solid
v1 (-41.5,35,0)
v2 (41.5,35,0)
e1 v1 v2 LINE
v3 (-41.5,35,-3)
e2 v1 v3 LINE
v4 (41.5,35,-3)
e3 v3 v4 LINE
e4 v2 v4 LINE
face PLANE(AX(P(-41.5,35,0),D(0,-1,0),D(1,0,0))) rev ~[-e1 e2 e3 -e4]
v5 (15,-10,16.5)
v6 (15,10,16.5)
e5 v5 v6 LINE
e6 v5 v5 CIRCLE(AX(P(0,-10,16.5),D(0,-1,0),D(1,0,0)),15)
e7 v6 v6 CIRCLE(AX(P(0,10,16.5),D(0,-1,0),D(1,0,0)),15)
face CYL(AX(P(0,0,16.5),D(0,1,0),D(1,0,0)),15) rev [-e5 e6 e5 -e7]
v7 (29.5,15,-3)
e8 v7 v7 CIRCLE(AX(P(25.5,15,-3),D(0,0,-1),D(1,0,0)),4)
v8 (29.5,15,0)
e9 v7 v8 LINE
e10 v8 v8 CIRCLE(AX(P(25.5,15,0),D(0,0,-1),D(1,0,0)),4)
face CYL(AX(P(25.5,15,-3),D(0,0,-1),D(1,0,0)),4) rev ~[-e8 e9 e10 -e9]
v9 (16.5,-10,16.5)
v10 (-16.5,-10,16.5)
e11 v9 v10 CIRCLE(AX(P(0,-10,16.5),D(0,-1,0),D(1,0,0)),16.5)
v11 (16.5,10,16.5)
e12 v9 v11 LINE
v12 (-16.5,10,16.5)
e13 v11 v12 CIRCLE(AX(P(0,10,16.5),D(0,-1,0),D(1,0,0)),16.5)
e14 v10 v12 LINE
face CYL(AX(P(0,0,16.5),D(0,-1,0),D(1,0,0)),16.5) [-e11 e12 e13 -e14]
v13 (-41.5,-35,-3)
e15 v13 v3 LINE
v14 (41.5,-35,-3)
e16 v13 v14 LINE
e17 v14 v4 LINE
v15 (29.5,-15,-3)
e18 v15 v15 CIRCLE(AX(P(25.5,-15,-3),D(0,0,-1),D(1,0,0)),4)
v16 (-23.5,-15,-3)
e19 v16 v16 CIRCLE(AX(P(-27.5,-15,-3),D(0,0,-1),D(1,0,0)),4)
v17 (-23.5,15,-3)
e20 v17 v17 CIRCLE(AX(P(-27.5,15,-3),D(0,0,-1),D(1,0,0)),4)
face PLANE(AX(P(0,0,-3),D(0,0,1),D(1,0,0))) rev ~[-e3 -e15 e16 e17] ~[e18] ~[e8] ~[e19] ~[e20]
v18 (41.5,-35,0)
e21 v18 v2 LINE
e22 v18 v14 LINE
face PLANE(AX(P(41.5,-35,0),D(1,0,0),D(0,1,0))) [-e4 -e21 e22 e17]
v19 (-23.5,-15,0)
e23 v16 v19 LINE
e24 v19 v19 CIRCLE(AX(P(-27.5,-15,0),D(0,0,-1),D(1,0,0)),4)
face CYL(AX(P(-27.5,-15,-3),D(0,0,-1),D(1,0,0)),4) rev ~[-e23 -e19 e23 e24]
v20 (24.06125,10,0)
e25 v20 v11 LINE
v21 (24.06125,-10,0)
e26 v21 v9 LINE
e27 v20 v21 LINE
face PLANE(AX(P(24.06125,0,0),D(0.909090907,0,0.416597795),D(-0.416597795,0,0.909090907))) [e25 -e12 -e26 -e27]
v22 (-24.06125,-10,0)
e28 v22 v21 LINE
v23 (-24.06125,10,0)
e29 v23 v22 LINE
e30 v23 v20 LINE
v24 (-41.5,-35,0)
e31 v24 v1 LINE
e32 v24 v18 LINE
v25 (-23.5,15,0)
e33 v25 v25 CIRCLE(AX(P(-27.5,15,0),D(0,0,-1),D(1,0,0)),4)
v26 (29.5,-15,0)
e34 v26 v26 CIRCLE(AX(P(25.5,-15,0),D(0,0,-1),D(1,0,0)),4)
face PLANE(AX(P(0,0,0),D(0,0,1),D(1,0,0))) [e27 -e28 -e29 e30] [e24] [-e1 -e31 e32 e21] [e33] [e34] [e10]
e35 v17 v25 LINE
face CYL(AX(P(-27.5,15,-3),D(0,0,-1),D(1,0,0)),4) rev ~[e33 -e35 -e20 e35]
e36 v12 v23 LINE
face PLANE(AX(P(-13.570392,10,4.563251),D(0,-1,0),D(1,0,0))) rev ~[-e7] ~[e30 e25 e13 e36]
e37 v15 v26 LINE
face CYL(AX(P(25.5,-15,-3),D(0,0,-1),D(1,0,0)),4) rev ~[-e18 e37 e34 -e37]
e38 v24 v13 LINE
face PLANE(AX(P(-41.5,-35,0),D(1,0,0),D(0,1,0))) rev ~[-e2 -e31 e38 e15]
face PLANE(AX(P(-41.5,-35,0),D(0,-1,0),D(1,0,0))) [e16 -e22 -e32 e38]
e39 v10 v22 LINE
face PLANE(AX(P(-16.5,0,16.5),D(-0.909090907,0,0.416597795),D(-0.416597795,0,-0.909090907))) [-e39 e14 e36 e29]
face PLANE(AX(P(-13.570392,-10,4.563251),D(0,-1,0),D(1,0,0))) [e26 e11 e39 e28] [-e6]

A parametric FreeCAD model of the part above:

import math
import FreeCAD as App
import Part
import Sketcher

doc = App.newDocument("Part")
params = doc.addObject("Spreadsheet::Sheet", "Params")
for row, (alias, value) in enumerate([
    ("sketch1_width", "83 mm"),
    ("sketch1_height", "70 mm"),
    ("pad1_length", "3 mm"),
    ("sketch2_diameter", "30 mm"),
    ("sketch2_radius", "16.5 mm"),
    ("sketch2_length", "18.15 mm"),
    ("pad2_length", "20 mm"),
    ("sketch3_diameter", "8 mm"),
    ("pocket1_length", "25 mm"),
], start=1):
    params.set(f"A{row}", alias)
    params.set(f"B{row}", "=" + value)
    params.setAlias(f"B{row}", alias)

body = doc.addObject("PartDesign::Body", "Body")

# Sketch on XY plane
sketch1 = body.newObject("Sketcher::SketchObject", "Sketch")
sketch1.AttachmentSupport = (doc.getObject("XY_Plane"), [""])
sketch1.MapMode = "FlatFace"
sketch1.addGeometry([
    Part.LineSegment(App.Vector(-42, 35, 0), App.Vector(-42, -35, 0)),
    Part.LineSegment(App.Vector(-42, -35, 0), App.Vector(42, -35, 0)),
    Part.LineSegment(App.Vector(42, -35, 0), App.Vector(42, 35, 0)),
    Part.LineSegment(App.Vector(42, 35, 0), App.Vector(-42, 35, 0)),
], False)
sketch1.addConstraint([
    Sketcher.Constraint("Coincident", 0, 2, 1, 1),
    Sketcher.Constraint("Coincident", 1, 2, 2, 1),
    Sketcher.Constraint("Coincident", 2, 2, 3, 1),
    Sketcher.Constraint("Coincident", 3, 2, 0, 1),
    Sketcher.Constraint("Vertical", 0),
    Sketcher.Constraint("Horizontal", 1),
    Sketcher.Constraint("Vertical", 2),
    Sketcher.Constraint("Horizontal", 3),
    Sketcher.Constraint("Symmetric", 0, 2, 2, 2, -1, 1),
    Sketcher.Constraint("DistanceX", 1, 1, 1, 2, 83.0),
    Sketcher.Constraint("DistanceY", 0, 2, 0, 1, 70.0),
])
sketch1.setExpression("Constraints[9]", "Params.sketch1_width")
sketch1.setExpression("Constraints[10]", "Params.sketch1_height")
pad1 = body.newObject("PartDesign::Pad", "Pad")
pad1.Profile = sketch1
pad1.setExpression("Length", "Params.pad1_length")
pad1.Reversed = True

# Sketch on XZ plane
sketch2 = body.newObject("Sketcher::SketchObject", "Sketch001")
sketch2.AttachmentSupport = (doc.getObject("XZ_Plane"), [""])
sketch2.MapMode = "FlatFace"
sketch2.addGeometry([
    Part.LineSegment(App.Vector(-16, 16, 0), App.Vector(-24, 0, 0)),  # 0
    Part.LineSegment(App.Vector(-24, 0, 0), App.Vector(24, 0, 0)),  # 1
    Part.LineSegment(App.Vector(24, 0, 0), App.Vector(16, 16, 0)),  # 2
    Part.ArcOfCircle(Part.Circle(App.Vector(0, 16, 0), App.Vector(0, 0, 1), 16), math.radians(0), math.radians(180)),  # 3
    Part.Circle(App.Vector(0, 16, 0), App.Vector(0, 0, 1), 15),  # 4
], False)
sketch2.addConstraint([
    Sketcher.Constraint("Coincident", 0, 2, 1, 1),
    Sketcher.Constraint("Coincident", 1, 2, 2, 1),
    Sketcher.Constraint("Coincident", 2, 2, 3, 1),
    Sketcher.Constraint("Coincident", 3, 2, 0, 1),
    Sketcher.Constraint("Horizontal", 1),
    Sketcher.Constraint("Coincident", 4, 3, 3, 3),
    Sketcher.Constraint("Symmetric", 0, 2, 1, 2, -1, 1),
    Sketcher.Constraint("Symmetric", 2, 2, 3, 2, -2),
    Sketcher.Constraint("Horizontal", 4, 3, 2, 2),
    Sketcher.Constraint("Diameter", 4, 30.0),
    Sketcher.Constraint("Radius", 3, 16.5),
    Sketcher.Constraint("DistanceY", -1, 1, 3, 3, 16.5),
    Sketcher.Constraint("Distance", 0, 18.15),
])
sketch2.setExpression("Constraints[9]", "Params.sketch2_diameter")
sketch2.setExpression("Constraints[10]", "Params.sketch2_radius")
sketch2.setExpression("Constraints[12]", "Params.sketch2_length")
pad2 = body.newObject("PartDesign::Pad", "Pad001")
pad2.Profile = sketch2
pad2.setExpression("Length", "Params.pad2_length")
pad2.Midplane = True

# Sketch on XY plane
sketch3 = body.newObject("Sketcher::SketchObject", "Sketch002")
sketch3.AttachmentSupport = (doc.getObject("XY_Plane"), [""])
sketch3.MapMode = "FlatFace"
sketch3.AttachmentOffset = App.Placement(App.Vector(0, 0, -3), App.Rotation())
sketch3.addGeometry([
    Part.Circle(App.Vector(-27.5, 15, 0), App.Vector(0, 0, 1), 4),
    Part.Circle(App.Vector(-27.5, -15, 0), App.Vector(0, 0, 1), 4),
    Part.Circle(App.Vector(25.5, -15, 0), App.Vector(0, 0, 1), 4),
    Part.Circle(App.Vector(25.5, 15, 0), App.Vector(0, 0, 1), 4),
], False)
sketch3.addConstraint([
    Sketcher.Constraint("Equal", 0, 1),
    Sketcher.Constraint("Equal", 1, 2),
    Sketcher.Constraint("Equal", 2, 3),
    Sketcher.Constraint("Symmetric", 0, 3, 1, 3, -1),
    Sketcher.Constraint("Symmetric", 2, 3, 3, 3, -1),
    Sketcher.Constraint("Horizontal", 1, 3, 2, 3),
    Sketcher.Constraint("Diameter", 0, 8.0),
    Sketcher.Constraint("DistanceY", -1, 1, 0, 3, 15.0),
    Sketcher.Constraint("DistanceX", 1, 3, 2, 3, 53.0),
    Sketcher.Constraint("DistanceX", 0, 3, -1, 1, 27.5),
])
sketch3.setExpression("Constraints[6]", "Params.sketch3_diameter")
pocket1 = body.newObject("PartDesign::Pocket", "Pocket")
pocket1.Profile = sketch3
pocket1.setExpression("Length", "Params.pocket1_length")
pocket1.Reversed = True

doc.recompute()
